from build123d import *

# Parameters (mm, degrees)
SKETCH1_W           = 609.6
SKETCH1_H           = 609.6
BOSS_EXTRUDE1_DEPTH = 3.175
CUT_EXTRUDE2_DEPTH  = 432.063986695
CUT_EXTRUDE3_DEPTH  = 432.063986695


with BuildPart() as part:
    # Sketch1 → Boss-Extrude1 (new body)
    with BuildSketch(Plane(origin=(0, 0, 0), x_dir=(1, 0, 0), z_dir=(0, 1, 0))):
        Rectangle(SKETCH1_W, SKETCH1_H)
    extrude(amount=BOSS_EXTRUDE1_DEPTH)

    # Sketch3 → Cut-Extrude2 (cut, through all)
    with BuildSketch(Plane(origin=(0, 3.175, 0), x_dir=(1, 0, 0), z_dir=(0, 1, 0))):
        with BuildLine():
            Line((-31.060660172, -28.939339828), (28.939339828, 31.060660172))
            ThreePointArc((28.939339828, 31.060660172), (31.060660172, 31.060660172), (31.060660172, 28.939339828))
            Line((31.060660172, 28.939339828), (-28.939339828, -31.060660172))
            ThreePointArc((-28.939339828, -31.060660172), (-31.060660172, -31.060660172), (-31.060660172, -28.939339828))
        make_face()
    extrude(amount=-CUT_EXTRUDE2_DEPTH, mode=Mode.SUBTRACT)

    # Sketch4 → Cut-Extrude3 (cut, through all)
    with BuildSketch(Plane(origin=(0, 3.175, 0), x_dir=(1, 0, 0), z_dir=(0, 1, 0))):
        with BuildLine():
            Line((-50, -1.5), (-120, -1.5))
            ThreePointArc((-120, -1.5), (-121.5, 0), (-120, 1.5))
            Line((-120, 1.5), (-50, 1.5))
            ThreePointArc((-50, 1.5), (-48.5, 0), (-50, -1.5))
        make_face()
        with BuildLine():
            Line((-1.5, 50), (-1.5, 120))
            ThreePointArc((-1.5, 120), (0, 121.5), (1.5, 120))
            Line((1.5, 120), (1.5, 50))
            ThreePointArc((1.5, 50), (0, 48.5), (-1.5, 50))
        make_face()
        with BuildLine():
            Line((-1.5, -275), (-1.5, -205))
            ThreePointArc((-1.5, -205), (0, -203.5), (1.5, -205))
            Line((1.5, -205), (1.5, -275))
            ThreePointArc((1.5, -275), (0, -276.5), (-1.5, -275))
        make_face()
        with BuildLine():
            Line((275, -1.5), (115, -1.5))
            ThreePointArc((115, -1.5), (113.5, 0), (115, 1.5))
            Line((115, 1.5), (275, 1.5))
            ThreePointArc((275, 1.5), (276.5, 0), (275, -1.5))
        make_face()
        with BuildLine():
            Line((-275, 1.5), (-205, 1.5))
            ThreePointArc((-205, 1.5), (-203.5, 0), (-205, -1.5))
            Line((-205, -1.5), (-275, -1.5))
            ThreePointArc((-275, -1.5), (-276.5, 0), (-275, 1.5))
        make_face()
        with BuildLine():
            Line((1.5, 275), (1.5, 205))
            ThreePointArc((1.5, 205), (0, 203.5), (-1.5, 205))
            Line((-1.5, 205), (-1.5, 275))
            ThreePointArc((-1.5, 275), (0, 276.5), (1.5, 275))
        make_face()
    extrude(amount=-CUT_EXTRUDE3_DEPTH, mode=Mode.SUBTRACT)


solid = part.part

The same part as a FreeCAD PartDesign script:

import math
import FreeCAD as App
import Part
import Sketcher

V = App.Vector
Q = App.Units.Quantity

doc = App.newDocument("Part")
params = doc.addObject("Spreadsheet::Sheet", "Params")
for row, (alias, value) in enumerate([
    ("sketch1_width", "609.6 mm"),
    ("pad1_length", "3.175 mm"),
    ("sketch2_radius", "1.5 mm"),
    ("sketch3_radius", "1.5 mm"),
    ("sketch3_width", "70 mm"),
    ("sketch3_width2", "160 mm"),
], start=1):
    params.set(f"A{row}", alias)
    params.set(f"B{row}", "=" + value)
    params.setAlias(f"B{row}", alias)

body = doc.addObject("PartDesign::Body", "Body")

sketch1 = body.newObject("Sketcher::SketchObject", "Sketch")
sketch1.AttachmentSupport = (doc.getObject("XZ_Plane"), [""])
sketch1.MapMode = "FlatFace"
sketch1.addGeometry(Part.LineSegment(V(-305, -305, 0), V(-305, 305, 0)), False)
sketch1.addGeometry(Part.LineSegment(V(-305, 305, 0), V(305, 305, 0)), False)
sketch1.addGeometry(Part.LineSegment(V(305, 305, 0), V(305, -305, 0)), False)
sketch1.addGeometry(Part.LineSegment(V(305, -305, 0), V(-305, -305, 0)), False)
sketch1.addConstraint(Sketcher.Constraint("Coincident", 0, 2, 1, 1))
sketch1.addConstraint(Sketcher.Constraint("Coincident", 1, 2, 2, 1))
sketch1.addConstraint(Sketcher.Constraint("Coincident", 2, 2, 3, 1))
sketch1.addConstraint(Sketcher.Constraint("Coincident", 3, 2, 0, 1))
sketch1.addConstraint(Sketcher.Constraint("Vertical", 0))
sketch1.addConstraint(Sketcher.Constraint("Horizontal", 1))
sketch1.addConstraint(Sketcher.Constraint("Vertical", 2))
sketch1.addConstraint(Sketcher.Constraint("Horizontal", 3))
sketch1.addConstraint(Sketcher.Constraint("Symmetric", 0, 2, 2, 2, -1, 1))
sketch1.addConstraint(Sketcher.Constraint("Equal", 3, 0))
sketch1.addConstraint(Sketcher.Constraint("DistanceX", 1, 1, 1, 2, Q("609.6 mm")))
sketch1.setExpression("Constraints[10]", "Params.sketch1_width")
pad1 = body.newObject("PartDesign::Pad", "Pad")
pad1.Profile = sketch1
pad1.setExpression("Length", "Params.pad1_length")
pad1.Reversed = True

sketch2 = body.newObject("Sketcher::SketchObject", "Sketch001")
sketch2.AttachmentSupport = (doc.getObject("XZ_Plane"), [""])
sketch2.MapMode = "FlatFace"
sketch2.AttachmentOffset = App.Placement(V(0, 0, -3.175), App.Rotation())
sketch2.addGeometry(Part.LineSegment(V(28.9, -31.1, 0), V(-31.1, 28.9, 0)), False)
sketch2.addGeometry(Part.ArcOfCircle(Part.Circle(V(-30, 30, 0), V(0, 0, 1), 1.5), math.radians(45), math.radians(225)), False)
sketch2.addGeometry(Part.LineSegment(V(-28.9, 31.1, 0), V(31.1, -28.9, 0)), False)
sketch2.addGeometry(Part.ArcOfCircle(Part.Circle(V(30, -30, 0), V(0, 0, 1), 1.5), math.radians(-135), math.radians(45)), False)
sketch2.addConstraint(Sketcher.Constraint("Tangent", 0, 2, 1, 2))
sketch2.addConstraint(Sketcher.Constraint("Tangent", 1, 1, 2, 1))
sketch2.addConstraint(Sketcher.Constraint("Tangent", 2, 2, 3, 2))
sketch2.addConstraint(Sketcher.Constraint("Tangent", 3, 1, 0, 1))
sketch2.addConstraint(Sketcher.Constraint("Equal", 1, 3))
sketch2.addConstraint(Sketcher.Constraint("Symmetric", 1, 3, 3, 3, -1, 1))
sketch2.addConstraint(Sketcher.Constraint("Radius", 1, Q("1.5 mm")))
sketch2.addConstraint(Sketcher.Constraint("Angle", 0, Q("135 deg")))
sketch2.addConstraint(Sketcher.Constraint("DistanceX", 1, 3, -1, 1, Q("30 mm")))
sketch2.setExpression("Constraints[6]", "Params.sketch2_radius")
pocket1 = body.newObject("PartDesign::Pocket", "Pocket")
pocket1.Profile = sketch2
pocket1.Type = "ThroughAll"
pocket1.Reversed = True

sketch3 = body.newObject("Sketcher::SketchObject", "Sketch002")
sketch3.AttachmentSupport = (doc.getObject("XZ_Plane"), [""])
sketch3.MapMode = "FlatFace"
sketch3.AttachmentOffset = App.Placement(V(0, 0, -3.175), App.Rotation())
sketch3.addGeometry(Part.LineSegment(V(-120, 1.5, 0), V(-50, 1.5, 0)), False)
sketch3.addGeometry(Part.ArcOfCircle(Part.Circle(V(-50, 0, 0), V(0, 0, 1), 1.5), math.radians(-90), math.radians(90)), False)
sketch3.addGeometry(Part.LineSegment(V(-50, -1.5, 0), V(-120, -1.5, 0)), False)
sketch3.addGeometry(Part.ArcOfCircle(Part.Circle(V(-120, 0, 0), V(0, 0, 1), 1.5), math.radians(90), math.radians(270)), False)
sketch3.addGeometry(Part.LineSegment(V(-1.5, -120, 0), V(-1.5, -50, 0)), False)
sketch3.addGeometry(Part.ArcOfCircle(Part.Circle(V(0, -50, 0), V(0, 0, 1), 1.5), math.radians(0), math.radians(180)), False)
sketch3.addGeometry(Part.LineSegment(V(1.5, -50, 0), V(1.5, -120, 0)), False)
sketch3.addGeometry(Part.ArcOfCircle(Part.Circle(V(0, -120, 0), V(0, 0, 1), 1.5), math.radians(180), math.radians(360)), False)
sketch3.addGeometry(Part.LineSegment(V(-1.5, 205, 0), V(-1.5, 275, 0)), False)
sketch3.addGeometry(Part.ArcOfCircle(Part.Circle(V(0, 275, 0), V(0, 0, 1), 1.5), math.radians(0), math.radians(180)), False)
sketch3.addGeometry(Part.LineSegment(V(1.5, 275, 0), V(1.5, 205, 0)), False)
sketch3.addGeometry(Part.ArcOfCircle(Part.Circle(V(0, 205, 0), V(0, 0, 1), 1.5), math.radians(180), math.radians(360)), False)
sketch3.addGeometry(Part.LineSegment(V(115, 1.5, 0), V(275, 1.5, 0)), False)
sketch3.addGeometry(Part.ArcOfCircle(Part.Circle(V(275, 0, 0), V(0, 0, 1), 1.5), math.radians(-90), math.radians(90)), False)
sketch3.addGeometry(Part.LineSegment(V(275, -1.5, 0), V(115, -1.5, 0)), False)
sketch3.addGeometry(Part.ArcOfCircle(Part.Circle(V(115, 0, 0), V(0, 0, 1), 1.5), math.radians(90), math.radians(270)), False)
sketch3.addGeometry(Part.LineSegment(V(-205, -1.5, 0), V(-275, -1.5, 0)), False)
sketch3.addGeometry(Part.ArcOfCircle(Part.Circle(V(-275, 0, 0), V(0, 0, 1), 1.5), math.radians(90), math.radians(270)), False)
sketch3.addGeometry(Part.LineSegment(V(-275, 1.5, 0), V(-205, 1.5, 0)), False)
sketch3.addGeometry(Part.ArcOfCircle(Part.Circle(V(-205, 0, 0), V(0, 0, 1), 1.5), math.radians(-90), math.radians(90)), False)
sketch3.addGeometry(Part.LineSegment(V(1.5, -205, 0), V(1.5, -275, 0)), False)
sketch3.addGeometry(Part.ArcOfCircle(Part.Circle(V(0, -275, 0), V(0, 0, 1), 1.5), math.radians(180), math.radians(360)), False)
sketch3.addGeometry(Part.LineSegment(V(-1.5, -275, 0), V(-1.5, -205, 0)), False)
sketch3.addGeometry(Part.ArcOfCircle(Part.Circle(V(0, -205, 0), V(0, 0, 1), 1.5), math.radians(0), math.radians(180)), False)
sketch3.addConstraint(Sketcher.Constraint("Tangent", 0, 2, 1, 2))
sketch3.addConstraint(Sketcher.Constraint("Tangent", 1, 1, 2, 1))
sketch3.addConstraint(Sketcher.Constraint("Tangent", 2, 2, 3, 2))
sketch3.addConstraint(Sketcher.Constraint("Tangent", 3, 1, 0, 1))
sketch3.addConstraint(Sketcher.Constraint("Tangent", 4, 2, 5, 2))
sketch3.addConstraint(Sketcher.Constraint("Tangent", 5, 1, 6, 1))
sketch3.addConstraint(Sketcher.Constraint("Tangent", 6, 2, 7, 2))
sketch3.addConstraint(Sketcher.Constraint("Tangent", 7, 1, 4, 1))
sketch3.addConstraint(Sketcher.Constraint("Tangent", 8, 2, 9, 2))
sketch3.addConstraint(Sketcher.Constraint("Tangent", 9, 1, 10, 1))
sketch3.addConstraint(Sketcher.Constraint("Tangent", 10, 2, 11, 2))
sketch3.addConstraint(Sketcher.Constraint("Tangent", 11, 1, 8, 1))
sketch3.addConstraint(Sketcher.Constraint("Tangent", 12, 2, 13, 2))
sketch3.addConstraint(Sketcher.Constraint("Tangent", 13, 1, 14, 1))
sketch3.addConstraint(Sketcher.Constraint("Tangent", 14, 2, 15, 2))
sketch3.addConstraint(Sketcher.Constraint("Tangent", 15, 1, 12, 1))
sketch3.addConstraint(Sketcher.Constraint("Tangent", 16, 2, 17, 2))
sketch3.addConstraint(Sketcher.Constraint("Tangent", 17, 1, 18, 1))
sketch3.addConstraint(Sketcher.Constraint("Tangent", 18, 2, 19, 2))
sketch3.addConstraint(Sketcher.Constraint("Tangent", 19, 1, 16, 1))
sketch3.addConstraint(Sketcher.Constraint("Tangent", 20, 2, 21, 2))
sketch3.addConstraint(Sketcher.Constraint("Tangent", 21, 1, 22, 1))
sketch3.addConstraint(Sketcher.Constraint("Tangent", 22, 2, 23, 2))
sketch3.addConstraint(Sketcher.Constraint("Tangent", 23, 1, 20, 1))
sketch3.addConstraint(Sketcher.Constraint("Horizontal", 0))
sketch3.addConstraint(Sketcher.Constraint("Horizontal", 2))
sketch3.addConstraint(Sketcher.Constraint("Vertical", 4))
sketch3.addConstraint(Sketcher.Constraint("Vertical", 6))
sketch3.addConstraint(Sketcher.Constraint("Vertical", 8))
sketch3.addConstraint(Sketcher.Constraint("Vertical", 10))
sketch3.addConstraint(Sketcher.Constraint("Horizontal", 12))
sketch3.addConstraint(Sketcher.Constraint("Horizontal", 14))
sketch3.addConstraint(Sketcher.Constraint("Horizontal", 16))
sketch3.addConstraint(Sketcher.Constraint("Horizontal", 18))
sketch3.addConstraint(Sketcher.Constraint("Vertical", 20))
sketch3.addConstraint(Sketcher.Constraint("Vertical", 22))
sketch3.addConstraint(Sketcher.Constraint("Equal", 3, 5))
sketch3.addConstraint(Sketcher.Constraint("Equal", 7, 9))
sketch3.addConstraint(Sketcher.Constraint("Equal", 11, 13))
sketch3.addConstraint(Sketcher.Constraint("Equal", 15, 17))
sketch3.addConstraint(Sketcher.Constraint("Equal", 19, 21))
sketch3.addConstraint(Sketcher.Constraint("Symmetric", 13, 3, 17, 3, -1, 1))
sketch3.addConstraint(Sketcher.Constraint("Symmetric", 9, 3, 21, 3, -1, 1))
sketch3.addConstraint(Sketcher.Constraint("Symmetric", 11, 3, 23, 3, -1))
sketch3.addConstraint(Sketcher.Constraint("PointOnObject", 1, 3, -1))
sketch3.addConstraint(Sketcher.Constraint("PointOnObject", 5, 3, -2))
sketch3.addConstraint(Sketcher.Constraint("PointOnObject", 13, 3, -1))
sketch3.addConstraint(Sketcher.Constraint("Equal", 2, 16))
sketch3.addConstraint(Sketcher.Constraint("Equal", 18, 4))
sketch3.addConstraint(Sketcher.Constraint("Equal", 6, 8))
sketch3.addConstraint(Sketcher.Constraint("Radius", 1, Q("1.5 mm")))
sketch3.addConstraint(Sketcher.Constraint("DistanceX", 0, 1, 0, 2, Q("70 mm")))
sketch3.addConstraint(Sketcher.Constraint("DistanceX", 12, 1, 12, 2, Q("160 mm")))
sketch3.addConstraint(Sketcher.Constraint("DistanceX", 1, 3, -1, 1, Q("50 mm")))
sketch3.addConstraint(Sketcher.Constraint("DistanceY", 5, 3, -1, 1, Q("50 mm")))
sketch3.addConstraint(Sketcher.Constraint("DistanceY", -1, 1, 9, 3, Q("275 mm")))
sketch3.addConstraint(Sketcher.Constraint("DistanceX", -1, 1, 13, 3, Q("275 mm")))
sketch3.setExpression("Constraints[50]", "Params.sketch3_radius")
sketch3.setExpression("Constraints[51]", "Params.sketch3_width")
sketch3.setExpression("Constraints[52]", "Params.sketch3_width2")
pocket2 = body.newObject("PartDesign::Pocket", "Pocket001")
pocket2.Profile = sketch3
pocket2.Type = "ThroughAll"
pocket2.Reversed = True

doc.recompute()
